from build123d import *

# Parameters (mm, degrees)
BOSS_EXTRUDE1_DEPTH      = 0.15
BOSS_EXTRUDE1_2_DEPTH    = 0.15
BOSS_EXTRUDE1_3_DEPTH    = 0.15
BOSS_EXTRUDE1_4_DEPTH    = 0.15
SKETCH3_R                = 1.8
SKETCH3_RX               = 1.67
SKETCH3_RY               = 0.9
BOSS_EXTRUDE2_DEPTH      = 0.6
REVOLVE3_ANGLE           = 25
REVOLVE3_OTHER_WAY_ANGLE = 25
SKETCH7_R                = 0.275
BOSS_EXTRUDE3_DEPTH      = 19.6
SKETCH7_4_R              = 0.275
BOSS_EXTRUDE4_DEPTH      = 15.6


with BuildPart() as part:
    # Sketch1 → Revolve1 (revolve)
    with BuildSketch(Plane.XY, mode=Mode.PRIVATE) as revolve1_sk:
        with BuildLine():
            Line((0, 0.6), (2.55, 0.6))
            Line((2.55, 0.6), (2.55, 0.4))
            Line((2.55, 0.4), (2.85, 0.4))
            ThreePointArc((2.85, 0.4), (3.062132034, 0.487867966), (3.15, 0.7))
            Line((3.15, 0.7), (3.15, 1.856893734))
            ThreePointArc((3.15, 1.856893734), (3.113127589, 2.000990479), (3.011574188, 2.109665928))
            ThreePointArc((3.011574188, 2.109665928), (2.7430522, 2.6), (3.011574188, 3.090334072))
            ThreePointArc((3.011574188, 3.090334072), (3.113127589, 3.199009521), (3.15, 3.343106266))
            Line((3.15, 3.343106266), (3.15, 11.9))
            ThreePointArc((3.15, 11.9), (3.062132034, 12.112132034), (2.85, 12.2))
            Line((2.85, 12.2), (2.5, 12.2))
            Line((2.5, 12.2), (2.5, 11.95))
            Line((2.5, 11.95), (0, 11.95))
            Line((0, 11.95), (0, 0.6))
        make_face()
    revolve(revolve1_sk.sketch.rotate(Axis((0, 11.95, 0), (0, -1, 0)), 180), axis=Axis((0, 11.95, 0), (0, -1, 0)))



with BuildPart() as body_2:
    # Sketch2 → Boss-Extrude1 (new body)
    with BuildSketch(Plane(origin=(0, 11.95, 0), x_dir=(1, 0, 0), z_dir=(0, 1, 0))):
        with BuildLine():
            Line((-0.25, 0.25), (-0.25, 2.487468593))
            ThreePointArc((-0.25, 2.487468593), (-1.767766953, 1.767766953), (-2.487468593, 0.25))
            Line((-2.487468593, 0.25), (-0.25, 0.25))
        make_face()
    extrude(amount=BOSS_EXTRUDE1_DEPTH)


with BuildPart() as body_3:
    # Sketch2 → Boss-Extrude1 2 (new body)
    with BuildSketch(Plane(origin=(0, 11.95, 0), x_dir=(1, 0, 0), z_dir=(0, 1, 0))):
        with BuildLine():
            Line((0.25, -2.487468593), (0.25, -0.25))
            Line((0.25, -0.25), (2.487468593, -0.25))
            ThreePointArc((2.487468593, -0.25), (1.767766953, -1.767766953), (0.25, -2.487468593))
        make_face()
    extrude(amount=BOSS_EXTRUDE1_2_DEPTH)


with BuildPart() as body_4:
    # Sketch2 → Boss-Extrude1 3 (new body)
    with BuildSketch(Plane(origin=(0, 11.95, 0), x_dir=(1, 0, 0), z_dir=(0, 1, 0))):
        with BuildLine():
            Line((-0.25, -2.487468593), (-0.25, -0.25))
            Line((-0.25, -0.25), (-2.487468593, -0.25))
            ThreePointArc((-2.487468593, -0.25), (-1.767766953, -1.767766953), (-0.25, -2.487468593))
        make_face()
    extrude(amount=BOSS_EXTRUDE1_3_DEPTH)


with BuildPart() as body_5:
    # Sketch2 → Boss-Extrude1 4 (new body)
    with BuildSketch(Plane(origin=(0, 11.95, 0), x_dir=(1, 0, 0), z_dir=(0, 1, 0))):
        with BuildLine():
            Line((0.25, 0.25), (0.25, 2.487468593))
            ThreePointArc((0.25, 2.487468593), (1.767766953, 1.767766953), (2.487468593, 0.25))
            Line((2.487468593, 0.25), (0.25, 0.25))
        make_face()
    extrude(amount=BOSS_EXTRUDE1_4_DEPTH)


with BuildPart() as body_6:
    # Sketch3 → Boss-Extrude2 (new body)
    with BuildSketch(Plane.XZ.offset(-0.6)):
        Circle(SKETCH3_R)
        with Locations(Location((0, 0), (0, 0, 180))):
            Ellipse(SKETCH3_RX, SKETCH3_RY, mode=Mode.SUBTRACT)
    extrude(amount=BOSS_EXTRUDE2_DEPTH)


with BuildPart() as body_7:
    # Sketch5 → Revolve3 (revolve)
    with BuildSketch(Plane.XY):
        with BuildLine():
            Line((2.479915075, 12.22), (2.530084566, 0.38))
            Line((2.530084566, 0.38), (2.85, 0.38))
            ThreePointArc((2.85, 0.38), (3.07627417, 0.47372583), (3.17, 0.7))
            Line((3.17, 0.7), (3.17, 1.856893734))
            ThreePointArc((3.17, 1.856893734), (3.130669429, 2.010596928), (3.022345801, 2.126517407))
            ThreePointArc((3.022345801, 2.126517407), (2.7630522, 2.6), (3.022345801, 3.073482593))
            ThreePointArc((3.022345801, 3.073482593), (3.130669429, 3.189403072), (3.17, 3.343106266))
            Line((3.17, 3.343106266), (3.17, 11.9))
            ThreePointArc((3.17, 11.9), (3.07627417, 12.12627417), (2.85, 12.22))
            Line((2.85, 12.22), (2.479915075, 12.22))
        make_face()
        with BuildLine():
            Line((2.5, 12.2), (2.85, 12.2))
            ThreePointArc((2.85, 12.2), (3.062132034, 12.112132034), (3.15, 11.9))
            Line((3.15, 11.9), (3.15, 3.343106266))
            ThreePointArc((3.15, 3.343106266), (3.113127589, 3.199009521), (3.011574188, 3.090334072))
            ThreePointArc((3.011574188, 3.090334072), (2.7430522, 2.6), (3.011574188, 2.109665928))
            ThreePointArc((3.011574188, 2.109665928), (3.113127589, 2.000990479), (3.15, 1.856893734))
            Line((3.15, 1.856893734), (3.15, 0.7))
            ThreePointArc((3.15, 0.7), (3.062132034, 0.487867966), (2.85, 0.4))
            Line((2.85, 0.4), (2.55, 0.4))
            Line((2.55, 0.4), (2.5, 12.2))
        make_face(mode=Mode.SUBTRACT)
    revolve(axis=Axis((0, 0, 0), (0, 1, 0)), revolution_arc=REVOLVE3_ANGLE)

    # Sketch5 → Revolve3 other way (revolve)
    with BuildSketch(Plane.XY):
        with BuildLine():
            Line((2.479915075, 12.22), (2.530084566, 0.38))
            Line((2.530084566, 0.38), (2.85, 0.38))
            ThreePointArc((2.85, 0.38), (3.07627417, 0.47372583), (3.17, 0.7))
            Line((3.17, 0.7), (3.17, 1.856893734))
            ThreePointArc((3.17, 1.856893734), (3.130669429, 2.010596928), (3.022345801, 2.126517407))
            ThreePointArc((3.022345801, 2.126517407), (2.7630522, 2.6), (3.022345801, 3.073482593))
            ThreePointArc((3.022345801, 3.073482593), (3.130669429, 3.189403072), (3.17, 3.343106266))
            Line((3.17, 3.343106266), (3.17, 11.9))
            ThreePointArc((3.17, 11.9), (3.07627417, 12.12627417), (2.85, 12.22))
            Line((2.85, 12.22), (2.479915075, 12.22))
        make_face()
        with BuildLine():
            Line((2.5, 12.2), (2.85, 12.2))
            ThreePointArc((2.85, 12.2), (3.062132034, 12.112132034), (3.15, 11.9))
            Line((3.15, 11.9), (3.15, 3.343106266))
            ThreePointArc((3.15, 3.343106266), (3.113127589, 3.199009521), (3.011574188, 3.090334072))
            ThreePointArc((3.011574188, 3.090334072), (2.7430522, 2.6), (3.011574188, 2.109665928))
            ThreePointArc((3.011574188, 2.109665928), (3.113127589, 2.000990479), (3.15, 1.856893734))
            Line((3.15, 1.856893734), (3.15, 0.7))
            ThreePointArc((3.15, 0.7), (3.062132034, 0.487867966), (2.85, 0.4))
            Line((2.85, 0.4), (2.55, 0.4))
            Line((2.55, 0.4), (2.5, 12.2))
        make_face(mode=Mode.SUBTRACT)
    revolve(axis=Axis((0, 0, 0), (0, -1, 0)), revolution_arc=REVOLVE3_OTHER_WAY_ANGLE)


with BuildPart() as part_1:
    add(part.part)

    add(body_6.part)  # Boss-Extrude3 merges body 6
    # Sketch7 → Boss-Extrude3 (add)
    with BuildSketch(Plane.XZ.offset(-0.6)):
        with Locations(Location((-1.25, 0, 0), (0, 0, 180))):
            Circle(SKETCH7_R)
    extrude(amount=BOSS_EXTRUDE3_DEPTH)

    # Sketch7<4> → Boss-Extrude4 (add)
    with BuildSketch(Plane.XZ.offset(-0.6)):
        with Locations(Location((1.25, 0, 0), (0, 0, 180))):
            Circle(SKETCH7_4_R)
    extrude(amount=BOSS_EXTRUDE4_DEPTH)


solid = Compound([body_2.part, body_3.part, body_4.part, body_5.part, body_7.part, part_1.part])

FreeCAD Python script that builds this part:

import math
import FreeCAD as App
import Part
import Sketcher
Q = App.Units.Quantity

doc = App.newDocument("Part")
body = doc.addObject("PartDesign::Body", "Body")

# Sketch on XY plane
sketch1 = body.newObject("Sketcher::SketchObject", "Sketch")
sketch1.AttachmentSupport = (doc.getObject("XY_Plane"), [""])
sketch1.MapMode = "FlatFace"
sketch1.addGeometry([
    Part.LineSegment(App.Vector(0, 0.6, 0), App.Vector(2.55, 0.6, 0)),  # 0
    Part.LineSegment(App.Vector(2.55, 0.6, 0), App.Vector(2.55, 0.4, 0)),  # 1
    Part.LineSegment(App.Vector(2.55, 0.4, 0), App.Vector(2.85, 0.4, 0)),  # 2
    Part.ArcOfCircle(Part.Circle(App.Vector(2.85, 0.7, 0), App.Vector(0, 0, 1), 0.3), math.radians(-90), math.radians(0)),  # 3
    Part.LineSegment(App.Vector(3.15, 0.7, 0), App.Vector(3.15, 1.856894, 0)),  # 4
    Part.ArcOfCircle(Part.Circle(App.Vector(2.85, 1.856894, 0), App.Vector(0, 0, 1), 0.3), math.radians(0), math.radians(57.412932)),  # 5
    Part.ArcOfCircle(Part.Circle(App.Vector(3.325, 2.6, 0), App.Vector(0, 0, 1), 0.581948), math.radians(122.587068), math.radians(237.412932)),  # 6
    Part.ArcOfCircle(Part.Circle(App.Vector(2.85, 3.343106, 0), App.Vector(0, 0, 1), 0.3), math.radians(-57.412932), math.radians(0)),  # 7
    Part.LineSegment(App.Vector(3.15, 3.343106, 0), App.Vector(3.15, 11.9, 0)),  # 8
    Part.ArcOfCircle(Part.Circle(App.Vector(2.85, 11.9, 0), App.Vector(0, 0, 1), 0.3), math.radians(0), math.radians(90)),  # 9
    Part.LineSegment(App.Vector(2.85, 12.2, 0), App.Vector(2.5, 12.2, 0)),  # 10
    Part.LineSegment(App.Vector(2.5, 12.2, 0), App.Vector(2.5, 11.95, 0)),  # 11
    Part.LineSegment(App.Vector(2.5, 11.95, 0), App.Vector(0, 11.95, 0)),  # 12
    Part.LineSegment(App.Vector(0, 11.95, 0), App.Vector(0, 0.6, 0)),  # 13
], False)
sketch1.addConstraint([
    Sketcher.Constraint("Coincident", 0, 2, 1, 1),
    Sketcher.Constraint("Coincident", 1, 2, 2, 1),
    Sketcher.Constraint("Tangent", 2, 2, 3, 1),
    Sketcher.Constraint("Tangent", 3, 2, 4, 1),
    Sketcher.Constraint("Tangent", 4, 2, 5, 1),
    Sketcher.Constraint("Tangent", 5, 2, 6, 2),
    Sketcher.Constraint("Tangent", 6, 1, 7, 1),
    Sketcher.Constraint("Tangent", 7, 2, 8, 1),
    Sketcher.Constraint("Tangent", 8, 2, 9, 1),
    Sketcher.Constraint("Tangent", 9, 2, 10, 1),
    Sketcher.Constraint("Coincident", 10, 2, 11, 1),
    Sketcher.Constraint("Coincident", 11, 2, 12, 1),
    Sketcher.Constraint("Coincident", 12, 2, 13, 1),
    Sketcher.Constraint("Coincident", 13, 2, 0, 1),
    Sketcher.Constraint("Horizontal", 0),
    Sketcher.Constraint("Vertical", 1),
    Sketcher.Constraint("Horizontal", 2),
    Sketcher.Constraint("Vertical", 4),
    Sketcher.Constraint("Vertical", 8),
    Sketcher.Constraint("Horizontal", 10),
    Sketcher.Constraint("Vertical", 11),
    Sketcher.Constraint("Horizontal", 12),
    Sketcher.Constraint("Vertical", 13),
    Sketcher.Constraint("Equal", 3, 5),
    Sketcher.Constraint("Equal", 5, 7),
    Sketcher.Constraint("Equal", 7, 9),
    Sketcher.Constraint("PointOnObject", 12, 2, -2),
    Sketcher.Constraint("Vertical", 5, 3, 7, 3),
    Sketcher.Constraint("Radius", 3, Q("0.3 mm")),
    Sketcher.Constraint("DistanceX", 2, 1, 2, 2, Q("0.3 mm")),
    Sketcher.Constraint("DistanceX", 12, 2, 12, 1, Q("2.5 mm")),
    Sketcher.Constraint("DistanceY", 1, 2, 1, 1, Q("0.2 mm")),
    Sketcher.Constraint("DistanceY", 0, 2, 6, 3, Q("2 mm")),
    Sketcher.Constraint("DistanceX", 0, 1, 0, 2, Q("2.55 mm")),
    Sketcher.Constraint("DistanceY", 11, 2, 11, 1, Q("0.25 mm")),
    Sketcher.Constraint("DistanceY", 13, 2, 13, 1, Q("11.35 mm")),
    Sketcher.Constraint("DistanceY", -1, 1, 3, 3, Q("0.7 mm")),
    Sketcher.Constraint("DistanceX", -1, 1, 6, 3, Q("3.325 mm")),
    Sketcher.Constraint("Radius", 6, Q("0.581948 mm")),
])
revolution = body.newObject("PartDesign::Revolution", "Revolution")
revolution.Profile = sketch1
revolution.ReferenceAxis = (sketch1, ["V_Axis"])
revolution.Angle = 360
body2 = doc.addObject("PartDesign::Body", "Body001")

# Sketch on XZ plane
sketch2 = body2.newObject("Sketcher::SketchObject", "Sketch001")
sketch2.AttachmentSupport = (doc.getObject("XZ_Plane001"), [""])
sketch2.MapMode = "FlatFace"
sketch2.AttachmentOffset = App.Placement(App.Vector(0, 0, -11.95), App.Rotation())
sketch2.addGeometry([
    Part.LineSegment(App.Vector(-0.25, -0.25, 0), App.Vector(-0.25, -2.487469, 0)),
    Part.ArcOfCircle(Part.Circle(App.Vector(0, 0, 0), App.Vector(0, 0, 1), 2.5), math.radians(-174.26083), math.radians(-95.73917)),
    Part.LineSegment(App.Vector(-2.487469, -0.25, 0), App.Vector(-0.25, -0.25, 0)),
], False)
sketch2.addConstraint([
    Sketcher.Constraint("Coincident", 0, 2, 1, 2),
    Sketcher.Constraint("Coincident", 1, 1, 2, 1),
    Sketcher.Constraint("Coincident", 2, 2, 0, 1),
    Sketcher.Constraint("Vertical", 0),
    Sketcher.Constraint("Horizontal", 2),
    Sketcher.Constraint("Coincident", 1, 3, -1, 1),
    Sketcher.Constraint("Equal", 2, 0),
    Sketcher.Constraint("Radius", 1, Q("2.5 mm")),
    Sketcher.Constraint("DistanceX", 0, 2, -1, 1, Q("0.25 mm")),
])
pad1 = body2.newObject("PartDesign::Pad", "Pad")
pad1.Profile = sketch2
pad1.Length = 0.15
pad1.Reversed = True
body3 = doc.addObject("PartDesign::Body", "Body002")

# Sketch on XZ plane
sketch3 = body3.newObject("Sketcher::SketchObject", "Sketch002")
sketch3.AttachmentSupport = (doc.getObject("XZ_Plane002"), [""])
sketch3.MapMode = "FlatFace"
sketch3.AttachmentOffset = App.Placement(App.Vector(0, 0, -11.95), App.Rotation())
sketch3.addGeometry([
    Part.LineSegment(App.Vector(0.25, 0.25, 0), App.Vector(0.25, 2.487469, 0)),
    Part.ArcOfCircle(Part.Circle(App.Vector(0, 0, 0), App.Vector(0, 0, 1), 2.5), math.radians(5.73917), math.radians(84.26083)),
    Part.LineSegment(App.Vector(2.487469, 0.25, 0), App.Vector(0.25, 0.25, 0)),
], False)
sketch3.addConstraint([
    Sketcher.Constraint("Coincident", 0, 2, 1, 2),
    Sketcher.Constraint("Coincident", 1, 1, 2, 1),
    Sketcher.Constraint("Coincident", 2, 2, 0, 1),
    Sketcher.Constraint("Vertical", 0),
    Sketcher.Constraint("Horizontal", 2),
    Sketcher.Constraint("Coincident", 1, 3, -1, 1),
    Sketcher.Constraint("Equal", 2, 0),
    Sketcher.Constraint("Radius", 1, Q("2.5 mm")),
    Sketcher.Constraint("DistanceX", -1, 1, 0, 2, Q("0.25 mm")),
])
pad2 = body3.newObject("PartDesign::Pad", "Pad001")
pad2.Profile = sketch3
pad2.Length = 0.15
pad2.Reversed = True
body4 = doc.addObject("PartDesign::Body", "Body003")

# Sketch on XZ plane
sketch4 = body4.newObject("Sketcher::SketchObject", "Sketch003")
sketch4.AttachmentSupport = (doc.getObject("XZ_Plane003"), [""])
sketch4.MapMode = "FlatFace"
sketch4.AttachmentOffset = App.Placement(App.Vector(0, 0, -11.95), App.Rotation())
sketch4.addGeometry([
    Part.LineSegment(App.Vector(-0.25, 2.487469, 0), App.Vector(-0.25, 0.25, 0)),
    Part.LineSegment(App.Vector(-0.25, 0.25, 0), App.Vector(-2.487469, 0.25, 0)),
    Part.ArcOfCircle(Part.Circle(App.Vector(0, 0, 0), App.Vector(0, 0, 1), 2.5), math.radians(95.73917), math.radians(174.26083)),
], False)
sketch4.addConstraint([
    Sketcher.Constraint("Coincident", 0, 2, 1, 1),
    Sketcher.Constraint("Coincident", 1, 2, 2, 2),
    Sketcher.Constraint("Coincident", 2, 1, 0, 1),
    Sketcher.Constraint("Vertical", 0),
    Sketcher.Constraint("Horizontal", 1),
    Sketcher.Constraint("Coincident", 2, 3, -1, 1),
    Sketcher.Constraint("Equal", 1, 0),
    Sketcher.Constraint("Radius", 2, Q("2.5 mm")),
    Sketcher.Constraint("DistanceX", 0, 2, -1, 1, Q("0.25 mm")),
])
pad3 = body4.newObject("PartDesign::Pad", "Pad002")
pad3.Profile = sketch4
pad3.Length = 0.15
pad3.Reversed = True
body5 = doc.addObject("PartDesign::Body", "Body004")

# Sketch on XZ plane
sketch5 = body5.newObject("Sketcher::SketchObject", "Sketch004")
sketch5.AttachmentSupport = (doc.getObject("XZ_Plane004"), [""])
sketch5.MapMode = "FlatFace"
sketch5.AttachmentOffset = App.Placement(App.Vector(0, 0, -11.95), App.Rotation())
sketch5.addGeometry([
    Part.LineSegment(App.Vector(0.25, -2.487469, 0), App.Vector(0.25, -0.25, 0)),
    Part.LineSegment(App.Vector(0.25, -0.25, 0), App.Vector(2.487469, -0.25, 0)),
    Part.ArcOfCircle(Part.Circle(App.Vector(0, 0, 0), App.Vector(0, 0, 1), 2.5), math.radians(-84.26083), math.radians(-5.73917)),
], False)
sketch5.addConstraint([
    Sketcher.Constraint("Coincident", 0, 2, 1, 1),
    Sketcher.Constraint("Coincident", 1, 2, 2, 2),
    Sketcher.Constraint("Coincident", 2, 1, 0, 1),
    Sketcher.Constraint("Vertical", 0),
    Sketcher.Constraint("Horizontal", 1),
    Sketcher.Constraint("Coincident", 2, 3, -1, 1),
    Sketcher.Constraint("Equal", 1, 0),
    Sketcher.Constraint("Radius", 2, Q("2.5 mm")),
    Sketcher.Constraint("DistanceX", -1, 1, 0, 2, Q("0.25 mm")),
])
pad4 = body5.newObject("PartDesign::Pad", "Pad003")
pad4.Profile = sketch5
pad4.Length = 0.15
pad4.Reversed = True
body6 = doc.addObject("PartDesign::Body", "Body005")

# Sketch on XZ plane
sketch6 = body6.newObject("Sketcher::SketchObject", "Sketch005")
sketch6.AttachmentSupport = (doc.getObject("XZ_Plane005"), [""])
sketch6.MapMode = "FlatFace"
sketch6.AttachmentOffset = App.Placement(App.Vector(0, 0, -0.6), App.Rotation())
sketch6.addGeometry([
    Part.Circle(App.Vector(0, 0, 0), App.Vector(0, 0, 1), 1.8),
    Part.Ellipse(App.Vector(-1.67, 0, 0), App.Vector(0, -0.9, 0), App.Vector(0, 0, 0)),
], False)
sketch6.addConstraint([
    Sketcher.Constraint("Block", 1),
    Sketcher.Constraint("Coincident", 0, 3, -1, 1),
    Sketcher.Constraint("Diameter", 0, Q("3.6 mm")),
])
pad5 = body6.newObject("PartDesign::Pad", "Pad004")
pad5.Profile = sketch6
pad5.Length = 0.6
body7 = doc.addObject("PartDesign::Body", "Body006")

# Sketch on XY plane
sketch7 = body7.newObject("Sketcher::SketchObject", "Sketch006")
sketch7.AttachmentSupport = (doc.getObject("XY_Plane006"), [""])
sketch7.MapMode = "FlatFace"
sketch7.addGeometry([
    Part.LineSegment(App.Vector(2.479915, 12.22, 0), App.Vector(2.530085, 0.38, 0)),  # 0
    Part.LineSegment(App.Vector(2.530085, 0.38, 0), App.Vector(2.85, 0.38, 0)),  # 1
    Part.ArcOfCircle(Part.Circle(App.Vector(2.85, 0.7, 0), App.Vector(0, 0, 1), 0.32), math.radians(-90), math.radians(0)),  # 2
    Part.LineSegment(App.Vector(3.17, 0.7, 0), App.Vector(3.17, 1.856894, 0)),  # 3
    Part.ArcOfCircle(Part.Circle(App.Vector(2.85, 1.856894, 0), App.Vector(0, 0, 1), 0.32), math.radians(0), math.radians(57.412932)),  # 4
    Part.ArcOfCircle(Part.Circle(App.Vector(3.325, 2.6, 0), App.Vector(0, 0, 1), 0.561948), math.radians(122.587068), math.radians(237.412932)),  # 5
    Part.ArcOfCircle(Part.Circle(App.Vector(2.85, 3.343106, 0), App.Vector(0, 0, 1), 0.32), math.radians(-57.412932), math.radians(0)),  # 6
    Part.LineSegment(App.Vector(3.17, 3.343106, 0), App.Vector(3.17, 11.9, 0)),  # 7
    Part.ArcOfCircle(Part.Circle(App.Vector(2.85, 11.9, 0), App.Vector(0, 0, 1), 0.32), math.radians(0), math.radians(90)),  # 8
    Part.LineSegment(App.Vector(2.85, 12.22, 0), App.Vector(2.479915, 12.22, 0)),  # 9
    Part.LineSegment(App.Vector(2.55, 0.4, 0), App.Vector(2.5, 12.2, 0)),  # 10
    Part.LineSegment(App.Vector(2.5, 12.2, 0), App.Vector(2.85, 12.2, 0)),  # 11
    Part.ArcOfCircle(Part.Circle(App.Vector(2.85, 11.9, 0), App.Vector(0, 0, 1), 0.3), math.radians(0), math.radians(90)),  # 12
    Part.LineSegment(App.Vector(3.15, 11.9, 0), App.Vector(3.15, 3.343106, 0)),  # 13
    Part.ArcOfCircle(Part.Circle(App.Vector(2.85, 3.343106, 0), App.Vector(0, 0, 1), 0.3), math.radians(-57.412932), math.radians(0)),  # 14
    Part.ArcOfCircle(Part.Circle(App.Vector(3.325, 2.6, 0), App.Vector(0, 0, 1), 0.581948), math.radians(122.587068), math.radians(237.412932)),  # 15
    Part.ArcOfCircle(Part.Circle(App.Vector(2.85, 1.856894, 0), App.Vector(0, 0, 1), 0.3), math.radians(0), math.radians(57.412932)),  # 16
    Part.LineSegment(App.Vector(3.15, 1.856894, 0), App.Vector(3.15, 0.7, 0)),  # 17
    Part.ArcOfCircle(Part.Circle(App.Vector(2.85, 0.7, 0), App.Vector(0, 0, 1), 0.3), math.radians(-90), math.radians(0)),  # 18
    Part.LineSegment(App.Vector(2.85, 0.4, 0), App.Vector(2.55, 0.4, 0)),  # 19
], False)
sketch7.addConstraint([
    Sketcher.Constraint("Coincident", 0, 2, 1, 1),
    Sketcher.Constraint("Tangent", 1, 2, 2, 1),
    Sketcher.Constraint("Tangent", 2, 2, 3, 1),
    Sketcher.Constraint("Tangent", 3, 2, 4, 1),
    Sketcher.Constraint("Tangent", 4, 2, 5, 2),
    Sketcher.Constraint("Tangent", 5, 1, 6, 1),
    Sketcher.Constraint("Tangent", 6, 2, 7, 1),
    Sketcher.Constraint("Tangent", 7, 2, 8, 1),
    Sketcher.Constraint("Tangent", 8, 2, 9, 1),
    Sketcher.Constraint("Coincident", 9, 2, 0, 1),
    Sketcher.Constraint("Coincident", 10, 2, 11, 1),
    Sketcher.Constraint("Tangent", 11, 2, 12, 2),
    Sketcher.Constraint("Tangent", 12, 1, 13, 1),
    Sketcher.Constraint("Tangent", 13, 2, 14, 2),
    Sketcher.Constraint("Tangent", 14, 1, 15, 1),
    Sketcher.Constraint("Tangent", 15, 2, 16, 2),
    Sketcher.Constraint("Tangent", 16, 1, 17, 1),
    Sketcher.Constraint("Tangent", 17, 2, 18, 2),
    Sketcher.Constraint("Tangent", 18, 1, 19, 1),
    Sketcher.Constraint("Coincident", 19, 2, 10, 1),
    Sketcher.Constraint("Horizontal", 1),
    Sketcher.Constraint("Vertical", 3),
    Sketcher.Constraint("Vertical", 7),
    Sketcher.Constraint("Horizontal", 9),
    Sketcher.Constraint("Horizontal", 11),
    Sketcher.Constraint("Vertical", 13),
    Sketcher.Constraint("Vertical", 17),
    Sketcher.Constraint("Horizontal", 19),
    Sketcher.Constraint("Coincident", 12, 3, 8, 3),
    Sketcher.Constraint("Coincident", 14, 3, 6, 3),
    Sketcher.Constraint("Coincident", 15, 3, 5, 3),
    Sketcher.Constraint("Coincident", 16, 3, 4, 3),
    Sketcher.Constraint("Coincident", 18, 3, 2, 3),
    Sketcher.Constraint("Equal", 2, 4),
    Sketcher.Constraint("Equal", 4, 6),
    Sketcher.Constraint("Equal", 6, 8),
    Sketcher.Constraint("Parallel", 0, 10),
    Sketcher.Constraint("Vertical", 4, 3, 6, 3),
    Sketcher.Constraint("Radius", 12, Q("0.3 mm")),
    Sketcher.Constraint("Radius", 2, Q("0.32 mm")),
    Sketcher.Constraint("DistanceX", 19, 2, 19, 1, Q("0.3 mm")),
    Sketcher.Constraint("DistanceX", 11, 1, 11, 2, Q("0.35 mm")),
    Sketcher.Constraint("DistanceY", -1, 1, 2, 3, Q("0.7 mm")),
    Sketcher.Constraint("DistanceY", -1, 1, 5, 3, Q("2.6 mm")),
    Sketcher.Constraint("DistanceY", -1, 1, 8, 3, Q("11.9 mm")),
    Sketcher.Constraint("DistanceX", -1, 1, 10, 2, Q("2.5 mm")),
    Sketcher.Constraint("DistanceX", -1, 1, 5, 3, Q("3.325 mm")),
    Sketcher.Constraint("Radius", 5, Q("0.561948 mm")),
    Sketcher.Constraint("DistanceX", 1, 1, 1, 2, Q("0.319915 mm")),
])
revolution2 = body7.newObject("PartDesign::Revolution", "Revolution001")
revolution2.Profile = sketch7
revolution2.ReferenceAxis = (sketch7, ["V_Axis"])
revolution2.Angle = 25

# Sketch on XY plane
sketch8 = body7.newObject("Sketcher::SketchObject", "Sketch007")
sketch8.AttachmentSupport = (doc.getObject("XY_Plane006"), [""])
sketch8.MapMode = "FlatFace"
sketch8.addGeometry([
    Part.LineSegment(App.Vector(2.479915, 12.22, 0), App.Vector(2.530085, 0.38, 0)),  # 0
    Part.LineSegment(App.Vector(2.530085, 0.38, 0), App.Vector(2.85, 0.38, 0)),  # 1
    Part.ArcOfCircle(Part.Circle(App.Vector(2.85, 0.7, 0), App.Vector(0, 0, 1), 0.32), math.radians(-90), math.radians(0)),  # 2
    Part.LineSegment(App.Vector(3.17, 0.7, 0), App.Vector(3.17, 1.856894, 0)),  # 3
    Part.ArcOfCircle(Part.Circle(App.Vector(2.85, 1.856894, 0), App.Vector(0, 0, 1), 0.32), math.radians(0), math.radians(57.412932)),  # 4
    Part.ArcOfCircle(Part.Circle(App.Vector(3.325, 2.6, 0), App.Vector(0, 0, 1), 0.561948), math.radians(122.587068), math.radians(237.412932)),  # 5
    Part.ArcOfCircle(Part.Circle(App.Vector(2.85, 3.343106, 0), App.Vector(0, 0, 1), 0.32), math.radians(-57.412932), math.radians(0)),  # 6
    Part.LineSegment(App.Vector(3.17, 3.343106, 0), App.Vector(3.17, 11.9, 0)),  # 7
    Part.ArcOfCircle(Part.Circle(App.Vector(2.85, 11.9, 0), App.Vector(0, 0, 1), 0.32), math.radians(0), math.radians(90)),  # 8
    Part.LineSegment(App.Vector(2.85, 12.22, 0), App.Vector(2.479915, 12.22, 0)),  # 9
    Part.LineSegment(App.Vector(2.55, 0.4, 0), App.Vector(2.5, 12.2, 0)),  # 10
    Part.LineSegment(App.Vector(2.5, 12.2, 0), App.Vector(2.85, 12.2, 0)),  # 11
    Part.ArcOfCircle(Part.Circle(App.Vector(2.85, 11.9, 0), App.Vector(0, 0, 1), 0.3), math.radians(0), math.radians(90)),  # 12
    Part.LineSegment(App.Vector(3.15, 11.9, 0), App.Vector(3.15, 3.343106, 0)),  # 13
    Part.ArcOfCircle(Part.Circle(App.Vector(2.85, 3.343106, 0), App.Vector(0, 0, 1), 0.3), math.radians(-57.412932), math.radians(0)),  # 14
    Part.ArcOfCircle(Part.Circle(App.Vector(3.325, 2.6, 0), App.Vector(0, 0, 1), 0.581948), math.radians(122.587068), math.radians(237.412932)),  # 15
    Part.ArcOfCircle(Part.Circle(App.Vector(2.85, 1.856894, 0), App.Vector(0, 0, 1), 0.3), math.radians(0), math.radians(57.412932)),  # 16
    Part.LineSegment(App.Vector(3.15, 1.856894, 0), App.Vector(3.15, 0.7, 0)),  # 17
    Part.ArcOfCircle(Part.Circle(App.Vector(2.85, 0.7, 0), App.Vector(0, 0, 1), 0.3), math.radians(-90), math.radians(0)),  # 18
    Part.LineSegment(App.Vector(2.85, 0.4, 0), App.Vector(2.55, 0.4, 0)),  # 19
], False)
sketch8.addConstraint([
    Sketcher.Constraint("Coincident", 0, 2, 1, 1),
    Sketcher.Constraint("Tangent", 1, 2, 2, 1),
    Sketcher.Constraint("Tangent", 2, 2, 3, 1),
    Sketcher.Constraint("Tangent", 3, 2, 4, 1),
    Sketcher.Constraint("Tangent", 4, 2, 5, 2),
    Sketcher.Constraint("Tangent", 5, 1, 6, 1),
    Sketcher.Constraint("Tangent", 6, 2, 7, 1),
    Sketcher.Constraint("Tangent", 7, 2, 8, 1),
    Sketcher.Constraint("Tangent", 8, 2, 9, 1),
    Sketcher.Constraint("Coincident", 9, 2, 0, 1),
    Sketcher.Constraint("Coincident", 10, 2, 11, 1),
    Sketcher.Constraint("Tangent", 11, 2, 12, 2),
    Sketcher.Constraint("Tangent", 12, 1, 13, 1),
    Sketcher.Constraint("Tangent", 13, 2, 14, 2),
    Sketcher.Constraint("Tangent", 14, 1, 15, 1),
    Sketcher.Constraint("Tangent", 15, 2, 16, 2),
    Sketcher.Constraint("Tangent", 16, 1, 17, 1),
    Sketcher.Constraint("Tangent", 17, 2, 18, 2),
    Sketcher.Constraint("Tangent", 18, 1, 19, 1),
    Sketcher.Constraint("Coincident", 19, 2, 10, 1),
    Sketcher.Constraint("Horizontal", 1),
    Sketcher.Constraint("Vertical", 3),
    Sketcher.Constraint("Vertical", 7),
    Sketcher.Constraint("Horizontal", 9),
    Sketcher.Constraint("Horizontal", 11),
    Sketcher.Constraint("Vertical", 13),
    Sketcher.Constraint("Vertical", 17),
    Sketcher.Constraint("Horizontal", 19),
    Sketcher.Constraint("Coincident", 12, 3, 8, 3),
    Sketcher.Constraint("Coincident", 14, 3, 6, 3),
    Sketcher.Constraint("Coincident", 15, 3, 5, 3),
    Sketcher.Constraint("Coincident", 16, 3, 4, 3),
    Sketcher.Constraint("Coincident", 18, 3, 2, 3),
    Sketcher.Constraint("Equal", 2, 4),
    Sketcher.Constraint("Equal", 4, 6),
    Sketcher.Constraint("Equal", 6, 8),
    Sketcher.Constraint("Parallel", 0, 10),
    Sketcher.Constraint("Vertical", 4, 3, 6, 3),
    Sketcher.Constraint("Radius", 12, Q("0.3 mm")),
    Sketcher.Constraint("Radius", 2, Q("0.32 mm")),
    Sketcher.Constraint("DistanceX", 19, 2, 19, 1, Q("0.3 mm")),
    Sketcher.Constraint("DistanceX", 11, 1, 11, 2, Q("0.35 mm")),
    Sketcher.Constraint("DistanceY", -1, 1, 2, 3, Q("0.7 mm")),
    Sketcher.Constraint("DistanceY", -1, 1, 5, 3, Q("2.6 mm")),
    Sketcher.Constraint("DistanceY", -1, 1, 8, 3, Q("11.9 mm")),
    Sketcher.Constraint("DistanceX", -1, 1, 10, 2, Q("2.5 mm")),
    Sketcher.Constraint("DistanceX", -1, 1, 5, 3, Q("3.325 mm")),
    Sketcher.Constraint("Radius", 5, Q("0.561948 mm")),
    Sketcher.Constraint("DistanceX", 1, 1, 1, 2, Q("0.319915 mm")),
])
revolution3 = body7.newObject("PartDesign::Revolution", "Revolution002")
revolution3.Profile = sketch8
revolution3.ReferenceAxis = (sketch8, ["V_Axis"])
revolution3.Angle = 25
revolution3.Reversed = True
doc.recompute()

boolean = body.newObject("PartDesign::Boolean", "Boolean")
boolean.Type = "Fuse"
boolean.addObjects([body6])

# Sketch on XZ plane
sketch9 = body.newObject("Sketcher::SketchObject", "Sketch008")
sketch9.AttachmentSupport = (doc.getObject("XZ_Plane"), [""])
sketch9.MapMode = "FlatFace"
sketch9.AttachmentOffset = App.Placement(App.Vector(0, 0, -0.6), App.Rotation())
sketch9.addGeometry(Part.Circle(App.Vector(-1.25, 0, 0), App.Vector(0, 0, 1), 0.275), False)
sketch9.addConstraint([
    Sketcher.Constraint("PointOnObject", 0, 3, -1),
    Sketcher.Constraint("Diameter", 0, Q("0.55 mm")),
    Sketcher.Constraint("DistanceX", 0, 3, -1, 1, Q("1.25 mm")),
])
pad6 = body.newObject("PartDesign::Pad", "Pad005")
pad6.Profile = sketch9
pad6.Length = 19.6

# Sketch on XZ plane
sketch10 = body.newObject("Sketcher::SketchObject", "Sketch009")
sketch10.AttachmentSupport = (doc.getObject("XZ_Plane"), [""])
sketch10.MapMode = "FlatFace"
sketch10.AttachmentOffset = App.Placement(App.Vector(0, 0, -0.6), App.Rotation())
sketch10.addGeometry(Part.Circle(App.Vector(1.25, 0, 0), App.Vector(0, 0, 1), 0.275), False)
sketch10.addConstraint([
    Sketcher.Constraint("PointOnObject", 0, 3, -1),
    Sketcher.Constraint("Diameter", 0, Q("0.55 mm")),
    Sketcher.Constraint("DistanceX", -1, 1, 0, 3, Q("1.25 mm")),
])
pad7 = body.newObject("PartDesign::Pad", "Pad006")
pad7.Profile = sketch10
pad7.Length = 15.6

doc.recompute()
